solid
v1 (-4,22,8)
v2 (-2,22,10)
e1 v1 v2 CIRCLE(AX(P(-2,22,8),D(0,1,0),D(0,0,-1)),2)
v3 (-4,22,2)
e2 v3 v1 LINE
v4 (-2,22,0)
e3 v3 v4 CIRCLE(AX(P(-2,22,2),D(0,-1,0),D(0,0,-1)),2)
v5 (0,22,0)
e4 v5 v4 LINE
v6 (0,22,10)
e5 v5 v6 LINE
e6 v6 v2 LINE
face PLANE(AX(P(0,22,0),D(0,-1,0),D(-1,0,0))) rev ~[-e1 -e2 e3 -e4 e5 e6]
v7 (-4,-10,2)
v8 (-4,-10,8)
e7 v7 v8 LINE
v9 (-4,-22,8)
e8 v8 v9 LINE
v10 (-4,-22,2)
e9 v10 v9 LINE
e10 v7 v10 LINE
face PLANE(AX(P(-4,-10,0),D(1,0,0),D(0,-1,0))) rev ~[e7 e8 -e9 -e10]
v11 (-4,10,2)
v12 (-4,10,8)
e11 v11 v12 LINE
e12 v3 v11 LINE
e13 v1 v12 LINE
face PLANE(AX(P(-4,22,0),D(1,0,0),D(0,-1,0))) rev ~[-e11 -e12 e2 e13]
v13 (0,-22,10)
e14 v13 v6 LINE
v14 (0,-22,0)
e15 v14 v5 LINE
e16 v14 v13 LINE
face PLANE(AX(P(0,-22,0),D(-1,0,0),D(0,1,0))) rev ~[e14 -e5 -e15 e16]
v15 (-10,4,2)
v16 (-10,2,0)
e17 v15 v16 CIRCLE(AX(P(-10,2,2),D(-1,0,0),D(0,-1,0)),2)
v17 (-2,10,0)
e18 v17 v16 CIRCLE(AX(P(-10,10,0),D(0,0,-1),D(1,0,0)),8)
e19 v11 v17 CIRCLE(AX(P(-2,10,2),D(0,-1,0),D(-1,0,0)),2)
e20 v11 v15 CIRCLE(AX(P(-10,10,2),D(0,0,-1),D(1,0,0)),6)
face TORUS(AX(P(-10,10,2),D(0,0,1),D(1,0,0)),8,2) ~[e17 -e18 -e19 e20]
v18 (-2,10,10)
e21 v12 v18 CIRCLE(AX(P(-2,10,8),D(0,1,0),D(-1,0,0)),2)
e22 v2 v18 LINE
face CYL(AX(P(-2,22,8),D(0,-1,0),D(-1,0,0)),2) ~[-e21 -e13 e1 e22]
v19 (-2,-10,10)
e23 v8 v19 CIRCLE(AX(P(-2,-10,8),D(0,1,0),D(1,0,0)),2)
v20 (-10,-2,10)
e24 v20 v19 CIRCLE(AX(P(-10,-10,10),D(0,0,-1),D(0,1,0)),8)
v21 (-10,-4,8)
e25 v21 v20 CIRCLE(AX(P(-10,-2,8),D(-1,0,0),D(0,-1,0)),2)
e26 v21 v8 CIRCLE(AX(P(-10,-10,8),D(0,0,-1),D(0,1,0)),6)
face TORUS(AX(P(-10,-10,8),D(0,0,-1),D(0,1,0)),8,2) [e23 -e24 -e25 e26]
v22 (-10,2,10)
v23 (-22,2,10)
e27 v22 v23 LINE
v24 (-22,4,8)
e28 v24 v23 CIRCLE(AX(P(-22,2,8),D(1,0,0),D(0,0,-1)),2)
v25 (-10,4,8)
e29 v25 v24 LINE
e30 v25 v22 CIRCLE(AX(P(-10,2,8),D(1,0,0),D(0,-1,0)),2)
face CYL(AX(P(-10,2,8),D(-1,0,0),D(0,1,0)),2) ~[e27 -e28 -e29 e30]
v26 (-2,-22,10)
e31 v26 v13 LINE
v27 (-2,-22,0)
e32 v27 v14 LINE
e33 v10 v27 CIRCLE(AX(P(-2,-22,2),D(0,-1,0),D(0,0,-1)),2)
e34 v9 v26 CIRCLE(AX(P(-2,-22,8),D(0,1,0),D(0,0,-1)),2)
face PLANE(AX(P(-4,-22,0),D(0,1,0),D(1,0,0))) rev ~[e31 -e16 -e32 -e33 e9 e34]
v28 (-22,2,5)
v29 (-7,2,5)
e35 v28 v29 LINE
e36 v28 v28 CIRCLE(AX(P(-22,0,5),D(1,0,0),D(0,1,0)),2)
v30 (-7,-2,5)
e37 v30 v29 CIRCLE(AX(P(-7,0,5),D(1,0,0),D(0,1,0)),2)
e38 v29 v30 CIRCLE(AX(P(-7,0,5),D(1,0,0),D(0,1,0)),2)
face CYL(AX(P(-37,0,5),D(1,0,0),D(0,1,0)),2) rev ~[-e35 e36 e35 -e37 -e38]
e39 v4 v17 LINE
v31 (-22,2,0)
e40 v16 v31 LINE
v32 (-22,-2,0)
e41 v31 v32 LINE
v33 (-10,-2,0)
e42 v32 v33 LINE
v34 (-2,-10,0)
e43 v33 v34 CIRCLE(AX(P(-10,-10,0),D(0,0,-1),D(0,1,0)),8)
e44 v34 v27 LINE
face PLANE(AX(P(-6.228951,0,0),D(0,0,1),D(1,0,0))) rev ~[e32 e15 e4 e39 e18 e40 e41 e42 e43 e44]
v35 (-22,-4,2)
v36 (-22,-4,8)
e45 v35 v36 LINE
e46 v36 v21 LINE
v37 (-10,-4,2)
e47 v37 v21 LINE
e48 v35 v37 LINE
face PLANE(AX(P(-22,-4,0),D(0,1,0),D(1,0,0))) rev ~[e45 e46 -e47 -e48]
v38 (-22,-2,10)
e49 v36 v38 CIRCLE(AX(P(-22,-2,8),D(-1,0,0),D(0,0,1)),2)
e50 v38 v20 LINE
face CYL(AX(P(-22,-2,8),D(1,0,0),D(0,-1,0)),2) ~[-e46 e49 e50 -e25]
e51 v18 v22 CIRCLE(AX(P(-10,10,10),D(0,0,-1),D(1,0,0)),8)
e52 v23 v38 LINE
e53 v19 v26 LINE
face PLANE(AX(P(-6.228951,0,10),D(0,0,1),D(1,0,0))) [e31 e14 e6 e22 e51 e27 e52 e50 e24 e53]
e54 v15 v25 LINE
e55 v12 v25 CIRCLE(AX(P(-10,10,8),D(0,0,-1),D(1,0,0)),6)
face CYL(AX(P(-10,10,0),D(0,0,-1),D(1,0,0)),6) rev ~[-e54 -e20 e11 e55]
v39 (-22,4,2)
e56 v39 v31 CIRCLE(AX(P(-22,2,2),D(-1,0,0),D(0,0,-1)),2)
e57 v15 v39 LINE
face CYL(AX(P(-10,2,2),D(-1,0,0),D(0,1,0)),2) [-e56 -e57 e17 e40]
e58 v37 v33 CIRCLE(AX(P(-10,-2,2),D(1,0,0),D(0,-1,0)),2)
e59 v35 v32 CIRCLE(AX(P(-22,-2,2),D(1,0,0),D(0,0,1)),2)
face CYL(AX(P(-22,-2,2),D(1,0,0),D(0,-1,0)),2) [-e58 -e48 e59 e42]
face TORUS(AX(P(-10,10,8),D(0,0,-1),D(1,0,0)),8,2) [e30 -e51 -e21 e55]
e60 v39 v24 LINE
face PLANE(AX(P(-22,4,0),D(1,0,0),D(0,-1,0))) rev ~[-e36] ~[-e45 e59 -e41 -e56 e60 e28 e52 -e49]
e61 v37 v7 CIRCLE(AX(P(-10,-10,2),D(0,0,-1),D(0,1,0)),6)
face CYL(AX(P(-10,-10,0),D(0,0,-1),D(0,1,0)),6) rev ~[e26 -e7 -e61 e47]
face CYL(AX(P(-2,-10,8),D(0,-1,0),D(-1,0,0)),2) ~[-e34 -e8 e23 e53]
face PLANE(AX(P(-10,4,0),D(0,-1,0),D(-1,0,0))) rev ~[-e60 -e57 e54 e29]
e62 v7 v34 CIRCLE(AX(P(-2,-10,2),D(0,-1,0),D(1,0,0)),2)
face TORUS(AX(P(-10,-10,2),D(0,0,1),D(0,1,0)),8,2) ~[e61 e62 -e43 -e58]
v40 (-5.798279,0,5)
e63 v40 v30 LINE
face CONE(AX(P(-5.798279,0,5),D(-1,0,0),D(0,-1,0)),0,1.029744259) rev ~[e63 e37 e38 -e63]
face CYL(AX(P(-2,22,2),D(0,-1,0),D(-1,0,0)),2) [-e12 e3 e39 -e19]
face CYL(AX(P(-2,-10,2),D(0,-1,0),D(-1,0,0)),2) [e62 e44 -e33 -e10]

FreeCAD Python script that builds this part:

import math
import FreeCAD as App
import Part
import Sketcher

V = App.Vector


def edges_at(feature, points):
    """Names of the edges that pass closest to the given points."""
    edges = feature.Shape.Edges
    near = lambda p: min(range(len(edges)), key=lambda i: edges[i].distToShape(Part.Vertex(*p))[0])
    return sorted({f"Edge{near(p) + 1}" for p in points})

doc = App.newDocument("Part")
body = doc.addObject("PartDesign::Body", "Body")

sketch1 = doc.addObject("Sketcher::SketchObject", "Sketch")
body.addObject(sketch1)
sketch1.AttachmentSupport = (doc.XY_Plane, [""])
sketch1.MapMode = "FlatFace"
sketch1.addGeometry([
    Part.LineSegment(V(0, -22, 0), V(0, 22, 0)),
    Part.LineSegment(V(0, 22, 0), V(-4, 22, 0)),
    Part.LineSegment(V(-4, 22, 0), V(-4, 10, 0)),
    Part.ArcOfCircle(Part.Circle(V(-10, 10, 0), V(0, 0, 1), 6), math.radians(-90), math.radians(0)),
    Part.LineSegment(V(-10, 4, 0), V(-22, 4, 0)),
    Part.LineSegment(V(-22, 4, 0), V(-22, -4, 0)),
    Part.LineSegment(V(-22, -4, 0), V(-10, -4, 0)),
    Part.ArcOfCircle(Part.Circle(V(-10, -10, 0), V(0, 0, 1), 6), math.radians(0), math.radians(90)),
    Part.LineSegment(V(-4, -10, 0), V(-4, -22, 0)),
    Part.LineSegment(V(-4, -22, 0), V(0, -22, 0)),
], False)
sketch1.addConstraint([
    Sketcher.Constraint("Coincident", 0, 2, 1, 1),
    Sketcher.Constraint("Coincident", 1, 2, 2, 1),
    Sketcher.Constraint("Tangent", 2, 2, 3, 2),
    Sketcher.Constraint("Tangent", 3, 1, 4, 1),
    Sketcher.Constraint("Coincident", 4, 2, 5, 1),
    Sketcher.Constraint("Coincident", 5, 2, 6, 1),
    Sketcher.Constraint("Tangent", 6, 2, 7, 2),
    Sketcher.Constraint("Tangent", 7, 1, 8, 1),
    Sketcher.Constraint("Coincident", 8, 2, 9, 1),
    Sketcher.Constraint("Coincident", 9, 2, 0, 1),
    Sketcher.Constraint("Vertical", 0),
    Sketcher.Constraint("Horizontal", 1),
    Sketcher.Constraint("Vertical", 2),
    Sketcher.Constraint("Horizontal", 4),
    Sketcher.Constraint("Vertical", 5),
    Sketcher.Constraint("Horizontal", 6),
    Sketcher.Constraint("Vertical", 8),
    Sketcher.Constraint("Horizontal", 9),
    Sketcher.Constraint("Equal", 3, 7),
    Sketcher.Constraint("Symmetric", 0, 2, 9, 2, -1, 1),
    Sketcher.Constraint("Symmetric", 3, 3, 7, 3, -1),
    Sketcher.Constraint("Equal", 6, 2),
    Sketcher.Constraint("Radius", 3, 6.0),
    Sketcher.Constraint("DistanceX", 1, 2, 1, 1, 4.0),
    Sketcher.Constraint("DistanceX", 4, 2, 4, 1, 12.0),
    Sketcher.Constraint("DistanceY", 0, 1, 0, 2, 44.0),
])
pad1 = doc.addObject("PartDesign::Pad", "Pad")
body.addObject(pad1)
pad1.Profile = sketch1
pad1.Length = 10
doc.recompute()

fillet = doc.addObject("PartDesign::Fillet", "Fillet")
body.addObject(fillet)
fillet.Base = (pad1, edges_at(pad1, [
    (-5.757, -5.757, 10),
    (-4, 16, 10),
    (-5.757, -5.757, 0),
    (-5.757, 5.757, 0),
]))
fillet.Radius = 2

sketch2 = doc.addObject("Sketcher::SketchObject", "Sketch001")
body.addObject(sketch2)
sketch2.AttachmentSupport = (doc.YZ_Plane, [""])
sketch2.MapMode = "FlatFace"
sketch2.AttachmentOffset = App.Placement(V(0, 0, -22), App.Rotation())
sketch2.addGeometry(Part.Circle(V(0, 5, 0), V(0, 0, 1), 2), False)
sketch2.addConstraint([
    Sketcher.Constraint("PointOnObject", 0, 3, -2),
    Sketcher.Constraint("Diameter", 0, 4.0),
    Sketcher.Constraint("DistanceY", -1, 1, 0, 3, 5.0),
])
doc.recompute()
hole = doc.addObject("PartDesign::Hole", "Hole")
body.addObject(hole)
hole.Profile = sketch2
hole.ThreadType = "None"
hole.Diameter = 4
hole.DepthType = "Dimension"
hole.Depth = 15
hole.DrillPoint = "Angled"
hole.DrillPointAngle = 118
hole.Reversed = True

doc.recompute()
